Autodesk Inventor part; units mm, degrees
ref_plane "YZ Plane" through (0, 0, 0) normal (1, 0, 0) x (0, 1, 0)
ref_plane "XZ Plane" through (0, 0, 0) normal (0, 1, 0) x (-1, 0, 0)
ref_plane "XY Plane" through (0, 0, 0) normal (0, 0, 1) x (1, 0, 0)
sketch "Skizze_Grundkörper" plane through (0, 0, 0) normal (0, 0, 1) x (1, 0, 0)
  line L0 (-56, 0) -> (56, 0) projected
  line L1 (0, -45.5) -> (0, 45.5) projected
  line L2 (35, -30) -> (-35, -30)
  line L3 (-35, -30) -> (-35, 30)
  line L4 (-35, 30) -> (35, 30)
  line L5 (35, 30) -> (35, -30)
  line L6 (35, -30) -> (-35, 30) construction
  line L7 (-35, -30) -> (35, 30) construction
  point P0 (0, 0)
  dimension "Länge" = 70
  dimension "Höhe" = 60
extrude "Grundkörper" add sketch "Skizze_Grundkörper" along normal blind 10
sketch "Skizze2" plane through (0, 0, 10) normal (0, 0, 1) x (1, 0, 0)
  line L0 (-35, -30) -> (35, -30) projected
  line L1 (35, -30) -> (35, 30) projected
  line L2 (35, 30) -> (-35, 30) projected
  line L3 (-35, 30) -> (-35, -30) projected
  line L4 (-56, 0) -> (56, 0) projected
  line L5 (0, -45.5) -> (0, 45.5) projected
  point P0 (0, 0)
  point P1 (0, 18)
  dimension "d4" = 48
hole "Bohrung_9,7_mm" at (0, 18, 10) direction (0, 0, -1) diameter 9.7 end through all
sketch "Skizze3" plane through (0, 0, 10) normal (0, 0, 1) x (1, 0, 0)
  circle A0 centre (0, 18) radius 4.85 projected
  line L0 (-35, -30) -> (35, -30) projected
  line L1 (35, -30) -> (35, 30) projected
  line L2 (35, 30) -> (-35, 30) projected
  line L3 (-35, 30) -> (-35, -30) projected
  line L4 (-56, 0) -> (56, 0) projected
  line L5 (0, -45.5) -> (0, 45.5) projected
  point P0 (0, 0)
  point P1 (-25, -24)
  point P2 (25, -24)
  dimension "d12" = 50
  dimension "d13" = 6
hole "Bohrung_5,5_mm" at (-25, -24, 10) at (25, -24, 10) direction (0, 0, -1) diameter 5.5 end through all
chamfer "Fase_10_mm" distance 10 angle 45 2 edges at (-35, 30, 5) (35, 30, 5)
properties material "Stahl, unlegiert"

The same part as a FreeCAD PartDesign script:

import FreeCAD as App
import Part
import Sketcher
from FreeCAD import Vector
Q = App.Units.Quantity


def edges_at(feature, points):
    """Names of the edges that pass closest to the given points."""
    edges = feature.Shape.Edges
    near = lambda p: min(range(len(edges)), key=lambda i: edges[i].distToShape(Part.Vertex(*p))[0])
    return sorted({f"Edge{near(p) + 1}" for p in points})

doc = App.newDocument("Part")
body = doc.addObject("PartDesign::Body", "Body")

# Sketch on XY plane
sketch1 = doc.addObject("Sketcher::SketchObject", "Sketch")
body.addObject(sketch1)
sketch1.AttachmentSupport = (doc.XY_Plane, [""])
sketch1.MapMode = "FlatFace"
sketch1.addGeometry([
    Part.LineSegment(Vector(-35, 30, 0), Vector(-35, -30, 0)),
    Part.LineSegment(Vector(-35, -30, 0), Vector(35, -30, 0)),
    Part.LineSegment(Vector(35, -30, 0), Vector(35, 30, 0)),
    Part.LineSegment(Vector(35, 30, 0), Vector(-35, 30, 0)),
], False)
sketch1.addConstraint([
    Sketcher.Constraint("Coincident", 0, 2, 1, 1),
    Sketcher.Constraint("Coincident", 1, 2, 2, 1),
    Sketcher.Constraint("Coincident", 2, 2, 3, 1),
    Sketcher.Constraint("Coincident", 3, 2, 0, 1),
    Sketcher.Constraint("Vertical", 0),
    Sketcher.Constraint("Horizontal", 1),
    Sketcher.Constraint("Vertical", 2),
    Sketcher.Constraint("Horizontal", 3),
    Sketcher.Constraint("Symmetric", 0, 2, 2, 2, -1, 1),
    Sketcher.Constraint("DistanceX", 1, 1, 1, 2, Q("70 mm")),
    Sketcher.Constraint("DistanceY", 0, 2, 0, 1, Q("60 mm")),
])
pad1 = doc.addObject("PartDesign::Pad", "Pad")
body.addObject(pad1)
pad1.Profile = sketch1
pad1.Length = 10

# Sketch on XY plane
sketch2 = doc.addObject("Sketcher::SketchObject", "Sketch001")
body.addObject(sketch2)
sketch2.AttachmentSupport = (doc.XY_Plane, [""])
sketch2.MapMode = "FlatFace"
sketch2.AttachmentOffset = App.Placement(Vector(0, 0, 10), App.Rotation())
sketch2.addGeometry(Part.Circle(Vector(0, 18, 0), Vector(0, 0, 1), 4.85), False)
sketch2.addConstraint([
    Sketcher.Constraint("PointOnObject", 0, 3, -2),
    Sketcher.Constraint("Diameter", 0, Q("9.7 mm")),
    Sketcher.Constraint("DistanceY", -1, 1, 0, 3, Q("18 mm")),
])
doc.recompute()
hole = doc.addObject("PartDesign::Hole", "Hole")
body.addObject(hole)
hole.Profile = sketch2
hole.ThreadType = "None"
hole.Diameter = 9.7
hole.DepthType = "ThroughAll"

# Sketch on XY plane
sketch3 = doc.addObject("Sketcher::SketchObject", "Sketch002")
body.addObject(sketch3)
sketch3.AttachmentSupport = (doc.XY_Plane, [""])
sketch3.MapMode = "FlatFace"
sketch3.AttachmentOffset = App.Placement(Vector(0, 0, 10), App.Rotation())
sketch3.addGeometry([
    Part.Circle(Vector(-25, -24, 0), Vector(0, 0, 1), 2.75),
    Part.Circle(Vector(25, -24, 0), Vector(0, 0, 1), 2.75),
], False)
sketch3.addConstraint([
    Sketcher.Constraint("Equal", 0, 1),
    Sketcher.Constraint("Symmetric", 0, 3, 1, 3, -2),
    Sketcher.Constraint("Diameter", 0, Q("5.5 mm")),
    Sketcher.Constraint("DistanceX", 0, 3, -1, 1, Q("25 mm")),
    Sketcher.Constraint("DistanceY", 0, 3, -1, 1, Q("24 mm")),
])
doc.recompute()
hole2 = doc.addObject("PartDesign::Hole", "Hole001")
body.addObject(hole2)
hole2.Profile = sketch3
hole2.ThreadType = "None"
hole2.Diameter = 5.5
hole2.DepthType = "ThroughAll"
doc.recompute()

chamfer = doc.addObject("PartDesign::Chamfer", "Chamfer")
body.addObject(chamfer)
chamfer.Base = (hole2, edges_at(hole2, [(-35, 30, 5), (35, 30, 5)]))
chamfer.Size = 10

doc.recompute()
